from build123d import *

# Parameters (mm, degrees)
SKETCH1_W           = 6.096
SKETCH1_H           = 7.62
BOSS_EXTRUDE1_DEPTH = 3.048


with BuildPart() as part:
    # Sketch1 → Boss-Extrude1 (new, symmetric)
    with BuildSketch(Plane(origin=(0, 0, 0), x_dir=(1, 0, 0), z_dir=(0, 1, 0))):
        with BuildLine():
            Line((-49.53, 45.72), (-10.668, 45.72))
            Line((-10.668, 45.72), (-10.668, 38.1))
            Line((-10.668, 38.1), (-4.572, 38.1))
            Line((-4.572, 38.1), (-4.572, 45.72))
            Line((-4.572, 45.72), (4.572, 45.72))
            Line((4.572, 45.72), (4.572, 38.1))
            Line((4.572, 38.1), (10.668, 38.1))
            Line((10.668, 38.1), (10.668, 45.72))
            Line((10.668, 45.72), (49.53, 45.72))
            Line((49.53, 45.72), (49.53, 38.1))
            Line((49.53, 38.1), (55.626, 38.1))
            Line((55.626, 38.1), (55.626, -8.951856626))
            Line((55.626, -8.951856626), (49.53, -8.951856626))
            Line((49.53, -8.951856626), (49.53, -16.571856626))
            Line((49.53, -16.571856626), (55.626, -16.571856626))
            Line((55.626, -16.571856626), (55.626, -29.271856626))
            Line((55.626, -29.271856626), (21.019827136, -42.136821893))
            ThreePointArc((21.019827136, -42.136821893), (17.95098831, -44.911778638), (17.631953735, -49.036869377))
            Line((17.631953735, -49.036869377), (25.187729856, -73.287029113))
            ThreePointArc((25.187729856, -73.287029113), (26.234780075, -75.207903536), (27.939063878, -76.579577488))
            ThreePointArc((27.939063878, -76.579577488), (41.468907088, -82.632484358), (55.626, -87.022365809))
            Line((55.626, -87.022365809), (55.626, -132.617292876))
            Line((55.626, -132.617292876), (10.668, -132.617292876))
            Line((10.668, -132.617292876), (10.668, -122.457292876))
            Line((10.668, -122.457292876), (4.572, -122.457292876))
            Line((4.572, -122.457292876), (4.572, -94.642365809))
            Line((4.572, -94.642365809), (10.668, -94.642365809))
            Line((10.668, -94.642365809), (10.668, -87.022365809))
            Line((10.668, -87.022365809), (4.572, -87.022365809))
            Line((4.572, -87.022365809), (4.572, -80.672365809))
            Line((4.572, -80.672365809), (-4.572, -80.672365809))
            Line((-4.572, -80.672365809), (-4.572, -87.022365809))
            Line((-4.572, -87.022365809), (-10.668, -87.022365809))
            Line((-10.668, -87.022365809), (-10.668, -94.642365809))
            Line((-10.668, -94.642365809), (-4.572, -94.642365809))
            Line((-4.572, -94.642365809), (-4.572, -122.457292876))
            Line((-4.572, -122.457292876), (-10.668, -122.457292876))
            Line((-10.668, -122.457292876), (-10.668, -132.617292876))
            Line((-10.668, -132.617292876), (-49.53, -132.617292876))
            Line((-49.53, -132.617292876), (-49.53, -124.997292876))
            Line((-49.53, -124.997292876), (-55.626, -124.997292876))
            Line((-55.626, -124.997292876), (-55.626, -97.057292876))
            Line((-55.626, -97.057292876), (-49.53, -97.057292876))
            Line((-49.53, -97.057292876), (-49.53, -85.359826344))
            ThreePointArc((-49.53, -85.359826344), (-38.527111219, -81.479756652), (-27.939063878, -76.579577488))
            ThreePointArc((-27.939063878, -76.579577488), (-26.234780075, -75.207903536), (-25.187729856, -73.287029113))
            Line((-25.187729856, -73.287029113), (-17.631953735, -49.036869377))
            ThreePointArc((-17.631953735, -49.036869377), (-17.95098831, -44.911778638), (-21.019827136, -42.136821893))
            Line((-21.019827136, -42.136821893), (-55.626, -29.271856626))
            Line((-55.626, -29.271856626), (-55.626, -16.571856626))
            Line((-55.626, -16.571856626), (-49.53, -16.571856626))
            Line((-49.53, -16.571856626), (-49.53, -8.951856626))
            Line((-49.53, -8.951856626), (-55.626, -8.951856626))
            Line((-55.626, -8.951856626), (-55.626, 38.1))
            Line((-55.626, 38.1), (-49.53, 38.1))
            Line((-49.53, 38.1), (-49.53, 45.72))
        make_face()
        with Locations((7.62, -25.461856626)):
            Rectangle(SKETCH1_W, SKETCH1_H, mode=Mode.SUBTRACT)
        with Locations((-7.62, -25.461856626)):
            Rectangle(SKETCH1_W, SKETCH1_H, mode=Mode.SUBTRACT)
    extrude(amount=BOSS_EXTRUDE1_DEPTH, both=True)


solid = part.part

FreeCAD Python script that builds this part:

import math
import FreeCAD as App
import Part
import Sketcher
Q = App.Units.Quantity

doc = App.newDocument("Part")
params = doc.addObject("Spreadsheet::Sheet", "Params")
for row, (alias, value) in enumerate([
    ("sketch1_radius", "0.22 in"),
    ("sketch1_length", "1 in"),
    ("sketch1_height", "0.3 in"),
    ("sketch1_height2", "0.5 in"),
    ("sketch1_height3", "1.1 in"),
    ("pad1_length", "0.24 in"),
], start=1):
    params.set(f"A{row}", alias)
    params.set(f"B{row}", "=" + value)
    params.setAlias(f"B{row}", alias)

body = doc.addObject("PartDesign::Body", "Body")

# Sketch on XZ plane
sketch1 = body.newObject("Sketcher::SketchObject", "Sketch")
sketch1.AttachmentSupport = (doc.getObject("XZ_Plane"), [""])
sketch1.MapMode = "FlatFace"
sketch1.addGeometry(Part.LineSegment(App.Vector(-10.668, -45.72, 0), App.Vector(-49.53, -45.72, 0)), False)
sketch1.addGeometry(Part.LineSegment(App.Vector(-49.53, -45.72, 0), App.Vector(-49.53, -38.1, 0)), False)
sketch1.addGeometry(Part.LineSegment(App.Vector(-49.53, -38.1, 0), App.Vector(-55.626, -38.1, 0)), False)
sketch1.addGeometry(Part.LineSegment(App.Vector(-55.626, -38.1, 0), App.Vector(-55.626, 8.951857, 0)), False)
sketch1.addGeometry(Part.LineSegment(App.Vector(-55.626, 8.951857, 0), App.Vector(-49.53, 8.951857, 0)), False)
sketch1.addGeometry(Part.LineSegment(App.Vector(-49.53, 8.951857, 0), App.Vector(-49.53, 16.571857, 0)), False)
sketch1.addGeometry(Part.LineSegment(App.Vector(-49.53, 16.571857, 0), App.Vector(-55.626, 16.571857, 0)), False)
sketch1.addGeometry(Part.LineSegment(App.Vector(-55.626, 16.571857, 0), App.Vector(-55.626, 29.271857, 0)), False)
sketch1.addGeometry(Part.LineSegment(App.Vector(-55.626, 29.271857, 0), App.Vector(-21.019827, 42.136822, 0)), False)
sketch1.addGeometry(Part.ArcOfCircle(Part.Circle(App.Vector(-22.966989, 47.374599, 0), App.Vector(0, 0, 1), 5.588), math.radians(-69.607207), math.radians(17.305799)), False)
sketch1.addGeometry(Part.LineSegment(App.Vector(-17.631954, 49.036869, 0), App.Vector(-25.18773, 73.287029, 0)), False)
sketch1.addGeometry(Part.ArcOfCircle(Part.Circle(App.Vector(-30.522765, 71.624758, 0), App.Vector(0, 0, 1), 5.588), math.radians(17.305799), math.radians(62.460114)), False)
sketch1.addGeometry(Part.ArcOfCircle(Part.Circle(App.Vector(-85.09, -33.02, 0), App.Vector(0, 0, 1), 123.605408), math.radians(62.460114), math.radians(73.280309)), False)
sketch1.addGeometry(Part.LineSegment(App.Vector(-49.53, 85.359826, 0), App.Vector(-49.53, 97.057293, 0)), False)
sketch1.addGeometry(Part.LineSegment(App.Vector(-49.53, 97.057293, 0), App.Vector(-55.626, 97.057293, 0)), False)
sketch1.addGeometry(Part.LineSegment(App.Vector(-55.626, 97.057293, 0), App.Vector(-55.626, 124.997293, 0)), False)
sketch1.addGeometry(Part.LineSegment(App.Vector(-55.626, 124.997293, 0), App.Vector(-49.53, 124.997293, 0)), False)
sketch1.addGeometry(Part.LineSegment(App.Vector(-49.53, 124.997293, 0), App.Vector(-49.53, 132.617293, 0)), False)
sketch1.addGeometry(Part.LineSegment(App.Vector(-49.53, 132.617293, 0), App.Vector(-10.668, 132.617293, 0)), False)
sketch1.addGeometry(Part.LineSegment(App.Vector(-10.668, 132.617293, 0), App.Vector(-10.668, 122.457293, 0)), False)
sketch1.addGeometry(Part.LineSegment(App.Vector(-10.668, 122.457293, 0), App.Vector(-4.572, 122.457293, 0)), False)
sketch1.addGeometry(Part.LineSegment(App.Vector(-4.572, 122.457293, 0), App.Vector(-4.572, 94.642366, 0)), False)
sketch1.addGeometry(Part.LineSegment(App.Vector(-4.572, 94.642366, 0), App.Vector(-10.668, 94.642366, 0)), False)
sketch1.addGeometry(Part.LineSegment(App.Vector(-10.668, 94.642366, 0), App.Vector(-10.668, 87.022366, 0)), False)
sketch1.addGeometry(Part.LineSegment(App.Vector(-10.668, 87.022366, 0), App.Vector(-4.572, 87.022366, 0)), False)
sketch1.addGeometry(Part.LineSegment(App.Vector(-4.572, 87.022366, 0), App.Vector(-4.572, 80.672366, 0)), False)
sketch1.addGeometry(Part.LineSegment(App.Vector(-4.572, 80.672366, 0), App.Vector(4.572, 80.672366, 0)), False)
sketch1.addGeometry(Part.LineSegment(App.Vector(4.572, 80.672366, 0), App.Vector(4.572, 87.022366, 0)), False)
sketch1.addGeometry(Part.LineSegment(App.Vector(4.572, 87.022366, 0), App.Vector(10.668, 87.022366, 0)), False)
sketch1.addGeometry(Part.LineSegment(App.Vector(10.668, 87.022366, 0), App.Vector(10.668, 94.642366, 0)), False)
sketch1.addGeometry(Part.LineSegment(App.Vector(10.668, 94.642366, 0), App.Vector(4.572, 94.642366, 0)), False)
sketch1.addGeometry(Part.LineSegment(App.Vector(4.572, 94.642366, 0), App.Vector(4.572, 122.457293, 0)), False)
sketch1.addGeometry(Part.LineSegment(App.Vector(4.572, 122.457293, 0), App.Vector(10.668, 122.457293, 0)), False)
sketch1.addGeometry(Part.LineSegment(App.Vector(10.668, 122.457293, 0), App.Vector(10.668, 132.617293, 0)), False)
sketch1.addGeometry(Part.LineSegment(App.Vector(10.668, 132.617293, 0), App.Vector(55.626, 132.617293, 0)), False)
sketch1.addGeometry(Part.LineSegment(App.Vector(55.626, 132.617293, 0), App.Vector(55.626, 87.022366, 0)), False)
sketch1.addGeometry(Part.ArcOfCircle(Part.Circle(App.Vector(85.09, -33.02, 0), App.Vector(0, 0, 1), 123.605408), math.radians(103.790442), math.radians(117.539886)), False)
sketch1.addGeometry(Part.ArcOfCircle(Part.Circle(App.Vector(30.522765, 71.624758, 0), App.Vector(0, 0, 1), 5.588), math.radians(117.539886), math.radians(162.694201)), False)
sketch1.addGeometry(Part.LineSegment(App.Vector(25.18773, 73.287029, 0), App.Vector(17.631954, 49.036869, 0)), False)
sketch1.addGeometry(Part.ArcOfCircle(Part.Circle(App.Vector(22.966989, 47.374599, 0), App.Vector(0, 0, 1), 5.588), math.radians(162.694201), math.radians(249.607207)), False)
sketch1.addGeometry(Part.LineSegment(App.Vector(21.019827, 42.136822, 0), App.Vector(55.626, 29.271857, 0)), False)
sketch1.addGeometry(Part.LineSegment(App.Vector(55.626, 29.271857, 0), App.Vector(55.626, 16.571857, 0)), False)
sketch1.addGeometry(Part.LineSegment(App.Vector(55.626, 16.571857, 0), App.Vector(49.53, 16.571857, 0)), False)
sketch1.addGeometry(Part.LineSegment(App.Vector(49.53, 16.571857, 0), App.Vector(49.53, 8.951857, 0)), False)
sketch1.addGeometry(Part.LineSegment(App.Vector(49.53, 8.951857, 0), App.Vector(55.626, 8.951857, 0)), False)
sketch1.addGeometry(Part.LineSegment(App.Vector(55.626, 8.951857, 0), App.Vector(55.626, -38.1, 0)), False)
sketch1.addGeometry(Part.LineSegment(App.Vector(55.626, -38.1, 0), App.Vector(49.53, -38.1, 0)), False)
sketch1.addGeometry(Part.LineSegment(App.Vector(49.53, -38.1, 0), App.Vector(49.53, -45.72, 0)), False)
sketch1.addGeometry(Part.LineSegment(App.Vector(49.53, -45.72, 0), App.Vector(10.668, -45.72, 0)), False)
sketch1.addGeometry(Part.LineSegment(App.Vector(10.668, -45.72, 0), App.Vector(10.668, -38.1, 0)), False)
sketch1.addGeometry(Part.LineSegment(App.Vector(10.668, -38.1, 0), App.Vector(4.572, -38.1, 0)), False)
sketch1.addGeometry(Part.LineSegment(App.Vector(4.572, -38.1, 0), App.Vector(4.572, -45.72, 0)), False)
sketch1.addGeometry(Part.LineSegment(App.Vector(4.572, -45.72, 0), App.Vector(-4.572, -45.72, 0)), False)
sketch1.addGeometry(Part.LineSegment(App.Vector(-4.572, -45.72, 0), App.Vector(-4.572, -38.1, 0)), False)
sketch1.addGeometry(Part.LineSegment(App.Vector(-4.572, -38.1, 0), App.Vector(-10.668, -38.1, 0)), False)
sketch1.addGeometry(Part.LineSegment(App.Vector(-10.668, -38.1, 0), App.Vector(-10.668, -45.72, 0)), False)
sketch1.addGeometry(Part.LineSegment(App.Vector(4.572, 29.271857, 0), App.Vector(4.572, 21.651857, 0)), False)
sketch1.addGeometry(Part.LineSegment(App.Vector(4.572, 21.651857, 0), App.Vector(10.668, 21.651857, 0)), False)
sketch1.addGeometry(Part.LineSegment(App.Vector(10.668, 21.651857, 0), App.Vector(10.668, 29.271857, 0)), False)
sketch1.addGeometry(Part.LineSegment(App.Vector(10.668, 29.271857, 0), App.Vector(4.572, 29.271857, 0)), False)
sketch1.addGeometry(Part.LineSegment(App.Vector(-10.668, 29.271857, 0), App.Vector(-10.668, 21.651857, 0)), False)
sketch1.addGeometry(Part.LineSegment(App.Vector(-10.668, 21.651857, 0), App.Vector(-4.572, 21.651857, 0)), False)
sketch1.addGeometry(Part.LineSegment(App.Vector(-4.572, 21.651857, 0), App.Vector(-4.572, 29.271857, 0)), False)
sketch1.addGeometry(Part.LineSegment(App.Vector(-4.572, 29.271857, 0), App.Vector(-10.668, 29.271857, 0)), False)
sketch1.addConstraint(Sketcher.Constraint("Coincident", 0, 2, 1, 1))
sketch1.addConstraint(Sketcher.Constraint("Coincident", 1, 2, 2, 1))
sketch1.addConstraint(Sketcher.Constraint("Coincident", 2, 2, 3, 1))
sketch1.addConstraint(Sketcher.Constraint("Coincident", 3, 2, 4, 1))
sketch1.addConstraint(Sketcher.Constraint("Coincident", 4, 2, 5, 1))
sketch1.addConstraint(Sketcher.Constraint("Coincident", 5, 2, 6, 1))
sketch1.addConstraint(Sketcher.Constraint("Coincident", 6, 2, 7, 1))
sketch1.addConstraint(Sketcher.Constraint("Coincident", 7, 2, 8, 1))
sketch1.addConstraint(Sketcher.Constraint("Tangent", 8, 2, 9, 1))
sketch1.addConstraint(Sketcher.Constraint("Tangent", 9, 2, 10, 1))
sketch1.addConstraint(Sketcher.Constraint("Tangent", 10, 2, 11, 1))
sketch1.addConstraint(Sketcher.Constraint("Tangent", 11, 2, 12, 1))
sketch1.addConstraint(Sketcher.Constraint("Coincident", 12, 2, 13, 1))
sketch1.addConstraint(Sketcher.Constraint("Coincident", 13, 2, 14, 1))
sketch1.addConstraint(Sketcher.Constraint("Coincident", 14, 2, 15, 1))
sketch1.addConstraint(Sketcher.Constraint("Coincident", 15, 2, 16, 1))
sketch1.addConstraint(Sketcher.Constraint("Coincident", 16, 2, 17, 1))
sketch1.addConstraint(Sketcher.Constraint("Coincident", 17, 2, 18, 1))
sketch1.addConstraint(Sketcher.Constraint("Coincident", 18, 2, 19, 1))
sketch1.addConstraint(Sketcher.Constraint("Coincident", 19, 2, 20, 1))
sketch1.addConstraint(Sketcher.Constraint("Coincident", 20, 2, 21, 1))
sketch1.addConstraint(Sketcher.Constraint("Coincident", 21, 2, 22, 1))
sketch1.addConstraint(Sketcher.Constraint("Coincident", 22, 2, 23, 1))
sketch1.addConstraint(Sketcher.Constraint("Coincident", 23, 2, 24, 1))
sketch1.addConstraint(Sketcher.Constraint("Coincident", 24, 2, 25, 1))
sketch1.addConstraint(Sketcher.Constraint("Coincident", 25, 2, 26, 1))
sketch1.addConstraint(Sketcher.Constraint("Coincident", 26, 2, 27, 1))
sketch1.addConstraint(Sketcher.Constraint("Coincident", 27, 2, 28, 1))
sketch1.addConstraint(Sketcher.Constraint("Coincident", 28, 2, 29, 1))
sketch1.addConstraint(Sketcher.Constraint("Coincident", 29, 2, 30, 1))
sketch1.addConstraint(Sketcher.Constraint("Coincident", 30, 2, 31, 1))
sketch1.addConstraint(Sketcher.Constraint("Coincident", 31, 2, 32, 1))
sketch1.addConstraint(Sketcher.Constraint("Coincident", 32, 2, 33, 1))
sketch1.addConstraint(Sketcher.Constraint("Coincident", 33, 2, 34, 1))
sketch1.addConstraint(Sketcher.Constraint("Coincident", 34, 2, 35, 1))
sketch1.addConstraint(Sketcher.Constraint("Coincident", 35, 2, 36, 1))
sketch1.addConstraint(Sketcher.Constraint("Tangent", 36, 2, 37, 1))
sketch1.addConstraint(Sketcher.Constraint("Tangent", 37, 2, 38, 1))
sketch1.addConstraint(Sketcher.Constraint("Tangent", 38, 2, 39, 1))
sketch1.addConstraint(Sketcher.Constraint("Tangent", 39, 2, 40, 1))
sketch1.addConstraint(Sketcher.Constraint("Coincident", 40, 2, 41, 1))
sketch1.addConstraint(Sketcher.Constraint("Coincident", 41, 2, 42, 1))
sketch1.addConstraint(Sketcher.Constraint("Coincident", 42, 2, 43, 1))
sketch1.addConstraint(Sketcher.Constraint("Coincident", 43, 2, 44, 1))
sketch1.addConstraint(Sketcher.Constraint("Coincident", 44, 2, 45, 1))
sketch1.addConstraint(Sketcher.Constraint("Coincident", 45, 2, 46, 1))
sketch1.addConstraint(Sketcher.Constraint("Coincident", 46, 2, 47, 1))
sketch1.addConstraint(Sketcher.Constraint("Coincident", 47, 2, 48, 1))
sketch1.addConstraint(Sketcher.Constraint("Coincident", 48, 2, 49, 1))
sketch1.addConstraint(Sketcher.Constraint("Coincident", 49, 2, 50, 1))
sketch1.addConstraint(Sketcher.Constraint("Coincident", 50, 2, 51, 1))
sketch1.addConstraint(Sketcher.Constraint("Coincident", 51, 2, 52, 1))
sketch1.addConstraint(Sketcher.Constraint("Coincident", 52, 2, 53, 1))
sketch1.addConstraint(Sketcher.Constraint("Coincident", 53, 2, 54, 1))
sketch1.addConstraint(Sketcher.Constraint("Coincident", 54, 2, 55, 1))
sketch1.addConstraint(Sketcher.Constraint("Coincident", 55, 2, 0, 1))
sketch1.addConstraint(Sketcher.Constraint("Coincident", 56, 2, 57, 1))
sketch1.addConstraint(Sketcher.Constraint("Coincident", 57, 2, 58, 1))
sketch1.addConstraint(Sketcher.Constraint("Coincident", 58, 2, 59, 1))
sketch1.addConstraint(Sketcher.Constraint("Coincident", 59, 2, 56, 1))
sketch1.addConstraint(Sketcher.Constraint("Coincident", 60, 2, 61, 1))
sketch1.addConstraint(Sketcher.Constraint("Coincident", 61, 2, 62, 1))
sketch1.addConstraint(Sketcher.Constraint("Coincident", 62, 2, 63, 1))
sketch1.addConstraint(Sketcher.Constraint("Coincident", 63, 2, 60, 1))
sketch1.addConstraint(Sketcher.Constraint("Horizontal", 0))
sketch1.addConstraint(Sketcher.Constraint("Vertical", 1))
sketch1.addConstraint(Sketcher.Constraint("Horizontal", 2))
sketch1.addConstraint(Sketcher.Constraint("Vertical", 3))
sketch1.addConstraint(Sketcher.Constraint("Horizontal", 4))
sketch1.addConstraint(Sketcher.Constraint("Vertical", 5))
sketch1.addConstraint(Sketcher.Constraint("Horizontal", 6))
sketch1.addConstraint(Sketcher.Constraint("Vertical", 7))
sketch1.addConstraint(Sketcher.Constraint("Vertical", 13))
sketch1.addConstraint(Sketcher.Constraint("Horizontal", 14))
sketch1.addConstraint(Sketcher.Constraint("Vertical", 15))
sketch1.addConstraint(Sketcher.Constraint("Horizontal", 16))
sketch1.addConstraint(Sketcher.Constraint("Vertical", 17))
sketch1.addConstraint(Sketcher.Constraint("Horizontal", 18))
sketch1.addConstraint(Sketcher.Constraint("Vertical", 19))
sketch1.addConstraint(Sketcher.Constraint("Horizontal", 20))
sketch1.addConstraint(Sketcher.Constraint("Vertical", 21))
sketch1.addConstraint(Sketcher.Constraint("Horizontal", 22))
sketch1.addConstraint(Sketcher.Constraint("Vertical", 23))
sketch1.addConstraint(Sketcher.Constraint("Horizontal", 24))
sketch1.addConstraint(Sketcher.Constraint("Vertical", 25))
sketch1.addConstraint(Sketcher.Constraint("Horizontal", 26))
sketch1.addConstraint(Sketcher.Constraint("Vertical", 27))
sketch1.addConstraint(Sketcher.Constraint("Horizontal", 28))
sketch1.addConstraint(Sketcher.Constraint("Vertical", 29))
sketch1.addConstraint(Sketcher.Constraint("Horizontal", 30))
sketch1.addConstraint(Sketcher.Constraint("Vertical", 31))
sketch1.addConstraint(Sketcher.Constraint("Horizontal", 32))
sketch1.addConstraint(Sketcher.Constraint("Vertical", 33))
sketch1.addConstraint(Sketcher.Constraint("Horizontal", 34))
sketch1.addConstraint(Sketcher.Constraint("Vertical", 35))
sketch1.addConstraint(Sketcher.Constraint("Vertical", 41))
sketch1.addConstraint(Sketcher.Constraint("Horizontal", 42))
sketch1.addConstraint(Sketcher.Constraint("Vertical", 43))
sketch1.addConstraint(Sketcher.Constraint("Horizontal", 44))
sketch1.addConstraint(Sketcher.Constraint("Vertical", 45))
sketch1.addConstraint(Sketcher.Constraint("Horizontal", 46))
sketch1.addConstraint(Sketcher.Constraint("Vertical", 47))
sketch1.addConstraint(Sketcher.Constraint("Horizontal", 48))
sketch1.addConstraint(Sketcher.Constraint("Vertical", 49))
sketch1.addConstraint(Sketcher.Constraint("Horizontal", 50))
sketch1.addConstraint(Sketcher.Constraint("Vertical", 51))
sketch1.addConstraint(Sketcher.Constraint("Horizontal", 52))
sketch1.addConstraint(Sketcher.Constraint("Vertical", 53))
sketch1.addConstraint(Sketcher.Constraint("Horizontal", 54))
sketch1.addConstraint(Sketcher.Constraint("Vertical", 55))
sketch1.addConstraint(Sketcher.Constraint("Vertical", 56))
sketch1.addConstraint(Sketcher.Constraint("Horizontal", 57))
sketch1.addConstraint(Sketcher.Constraint("Vertical", 58))
sketch1.addConstraint(Sketcher.Constraint("Horizontal", 59))
sketch1.addConstraint(Sketcher.Constraint("Vertical", 60))
sketch1.addConstraint(Sketcher.Constraint("Horizontal", 61))
sketch1.addConstraint(Sketcher.Constraint("Vertical", 62))
sketch1.addConstraint(Sketcher.Constraint("Horizontal", 63))
sketch1.addConstraint(Sketcher.Constraint("Equal", 9, 11))
sketch1.addConstraint(Sketcher.Constraint("Equal", 12, 36))
sketch1.addConstraint(Sketcher.Constraint("Equal", 11, 37))
sketch1.addConstraint(Sketcher.Constraint("Equal", 37, 39))
sketch1.addConstraint(Sketcher.Constraint("Symmetric", 12, 3, 36, 3, -2))
sketch1.addConstraint(Sketcher.Constraint("Symmetric", 9, 3, 39, 3, -2))
sketch1.addConstraint(Sketcher.Constraint("Symmetric", 24, 2, 27, 2, -2))
sketch1.addConstraint(Sketcher.Constraint("Symmetric", 22, 2, 29, 2, -2))
sketch1.addConstraint(Sketcher.Constraint("Symmetric", 20, 2, 31, 2, -2))
sketch1.addConstraint(Sketcher.Constraint("Symmetric", 18, 2, 33, 2, -2))
sketch1.addConstraint(Sketcher.Constraint("Symmetric", 7, 2, 40, 2, -2))
sketch1.addConstraint(Sketcher.Constraint("Symmetric", 5, 2, 42, 2, -2))
sketch1.addConstraint(Sketcher.Constraint("Symmetric", 3, 2, 44, 2, -2))
sketch1.addConstraint(Sketcher.Constraint("Symmetric", 1, 2, 46, 2, -2))
sketch1.addConstraint(Sketcher.Constraint("Symmetric", 50, 2, 53, 2, -2))
sketch1.addConstraint(Sketcher.Constraint("Symmetric", 48, 2, 55, 2, -2))
sketch1.addConstraint(Sketcher.Constraint("Symmetric", 57, 2, 60, 2, -2))
sketch1.addConstraint(Sketcher.Constraint("Symmetric", 59, 2, 62, 2, -2))
sketch1.addConstraint(Sketcher.Constraint("Horizontal", 11, 3, 37, 3))
sketch1.addConstraint(Sketcher.Constraint("Horizontal", 28, 2, 35, 2))
sketch1.addConstraint(Sketcher.Constraint("Horizontal", 46, 2, 49, 2))
sketch1.addConstraint(Sketcher.Constraint("Horizontal", 48, 2, 51, 2))
sketch1.addConstraint(Sketcher.Constraint("Horizontal", 40, 2, 58, 2))
sketch1.addConstraint(Sketcher.Constraint("Vertical", 1, 2, 4, 2))
sketch1.addConstraint(Sketcher.Constraint("Vertical", 3, 2, 6, 2))
sketch1.addConstraint(Sketcher.Constraint("Vertical", 5, 2, 12, 2))
sketch1.addConstraint(Sketcher.Constraint("Vertical", 7, 2, 14, 2))
sketch1.addConstraint(Sketcher.Constraint("Vertical", 13, 2, 16, 2))
sketch1.addConstraint(Sketcher.Constraint("Vertical", 19, 2, 22, 2))
sketch1.addConstraint(Sketcher.Constraint("Vertical", 21, 2, 24, 2))
sketch1.addConstraint(Sketcher.Constraint("Vertical", 35, 2, 40, 2))
sketch1.addConstraint(Sketcher.Constraint("Vertical", 33, 2, 48, 2))
sketch1.addConstraint(Sketcher.Constraint("Vertical", 31, 2, 50, 2))
sketch1.addConstraint(Sketcher.Constraint("Vertical", 51, 2, 56, 2))
sketch1.addConstraint(Sketcher.Constraint("Vertical", 49, 2, 57, 2))
sketch1.addConstraint(Sketcher.Constraint("Equal", 16, 20))
sketch1.addConstraint(Sketcher.Constraint("Equal", 1, 5))
sketch1.addConstraint(Sketcher.Constraint("Equal", 5, 17))
sketch1.addConstraint(Sketcher.Constraint("Equal", 17, 23))
sketch1.addConstraint(Sketcher.Constraint("Equal", 55, 56))
sketch1.addConstraint(Sketcher.Constraint("Radius", 9, Q("0.22 in")))
sketch1.addConstraint(Sketcher.Constraint("Distance", 10, Q("1 in")))
sketch1.addConstraint(Sketcher.Constraint("DistanceY", 1, 1, 1, 2, Q("0.3 in")))
sketch1.addConstraint(Sketcher.Constraint("DistanceY", 7, 1, 7, 2, Q("0.5 in")))
sketch1.addConstraint(Sketcher.Constraint("DistanceY", 15, 1, 15, 2, Q("1.1 in")))
sketch1.addConstraint(Sketcher.Constraint("DistanceY", 19, 2, 19, 1, Q("0.4 in")))
sketch1.addConstraint(Sketcher.Constraint("DistanceX", 0, 2, 0, 1, Q("1.53 in")))
sketch1.addConstraint(Sketcher.Constraint("DistanceX", 2, 2, 2, 1, Q("0.24 in")))
sketch1.addConstraint(Sketcher.Constraint("DistanceX", 26, 1, 26, 2, Q("0.36 in")))
sketch1.addConstraint(Sketcher.Constraint("DistanceY", 25, 2, 25, 1, Q("0.25 in")))
sketch1.addConstraint(Sketcher.Constraint("DistanceY", 12, 3, -1, 1, Q("1.3 in")))
sketch1.addConstraint(Sketcher.Constraint("DistanceY", 0, 2, -1, 1, Q("1.8 in")))
sketch1.addConstraint(Sketcher.Constraint("DistanceX", 12, 3, -1, 1, Q("3.35 in")))
sketch1.addConstraint(Sketcher.Constraint("Radius", 12, 123.605408))
sketch1.addConstraint(Sketcher.Constraint("DistanceY", -1, 1, 9, 3, 47.374599))
sketch1.addConstraint(Sketcher.Constraint("Distance", 8, 36.92011))
sketch1.addConstraint(Sketcher.Constraint("DistanceY", 3, 1, 3, 2, 47.051857))
sketch1.addConstraint(Sketcher.Constraint("DistanceY", 13, 1, 13, 2, 11.697467))
sketch1.setExpression("Constraints[158]", "Params.sketch1_radius")
sketch1.setExpression("Constraints[159]", "Params.sketch1_length")
sketch1.setExpression("Constraints[160]", "Params.sketch1_height")
sketch1.setExpression("Constraints[161]", "Params.sketch1_height2")
sketch1.setExpression("Constraints[162]", "Params.sketch1_height3")
pad1 = body.newObject("PartDesign::Pad", "Pad")
pad1.Profile = sketch1
pad1.setExpression("Length", "Params.pad1_length")
pad1.Midplane = True

doc.recompute()
